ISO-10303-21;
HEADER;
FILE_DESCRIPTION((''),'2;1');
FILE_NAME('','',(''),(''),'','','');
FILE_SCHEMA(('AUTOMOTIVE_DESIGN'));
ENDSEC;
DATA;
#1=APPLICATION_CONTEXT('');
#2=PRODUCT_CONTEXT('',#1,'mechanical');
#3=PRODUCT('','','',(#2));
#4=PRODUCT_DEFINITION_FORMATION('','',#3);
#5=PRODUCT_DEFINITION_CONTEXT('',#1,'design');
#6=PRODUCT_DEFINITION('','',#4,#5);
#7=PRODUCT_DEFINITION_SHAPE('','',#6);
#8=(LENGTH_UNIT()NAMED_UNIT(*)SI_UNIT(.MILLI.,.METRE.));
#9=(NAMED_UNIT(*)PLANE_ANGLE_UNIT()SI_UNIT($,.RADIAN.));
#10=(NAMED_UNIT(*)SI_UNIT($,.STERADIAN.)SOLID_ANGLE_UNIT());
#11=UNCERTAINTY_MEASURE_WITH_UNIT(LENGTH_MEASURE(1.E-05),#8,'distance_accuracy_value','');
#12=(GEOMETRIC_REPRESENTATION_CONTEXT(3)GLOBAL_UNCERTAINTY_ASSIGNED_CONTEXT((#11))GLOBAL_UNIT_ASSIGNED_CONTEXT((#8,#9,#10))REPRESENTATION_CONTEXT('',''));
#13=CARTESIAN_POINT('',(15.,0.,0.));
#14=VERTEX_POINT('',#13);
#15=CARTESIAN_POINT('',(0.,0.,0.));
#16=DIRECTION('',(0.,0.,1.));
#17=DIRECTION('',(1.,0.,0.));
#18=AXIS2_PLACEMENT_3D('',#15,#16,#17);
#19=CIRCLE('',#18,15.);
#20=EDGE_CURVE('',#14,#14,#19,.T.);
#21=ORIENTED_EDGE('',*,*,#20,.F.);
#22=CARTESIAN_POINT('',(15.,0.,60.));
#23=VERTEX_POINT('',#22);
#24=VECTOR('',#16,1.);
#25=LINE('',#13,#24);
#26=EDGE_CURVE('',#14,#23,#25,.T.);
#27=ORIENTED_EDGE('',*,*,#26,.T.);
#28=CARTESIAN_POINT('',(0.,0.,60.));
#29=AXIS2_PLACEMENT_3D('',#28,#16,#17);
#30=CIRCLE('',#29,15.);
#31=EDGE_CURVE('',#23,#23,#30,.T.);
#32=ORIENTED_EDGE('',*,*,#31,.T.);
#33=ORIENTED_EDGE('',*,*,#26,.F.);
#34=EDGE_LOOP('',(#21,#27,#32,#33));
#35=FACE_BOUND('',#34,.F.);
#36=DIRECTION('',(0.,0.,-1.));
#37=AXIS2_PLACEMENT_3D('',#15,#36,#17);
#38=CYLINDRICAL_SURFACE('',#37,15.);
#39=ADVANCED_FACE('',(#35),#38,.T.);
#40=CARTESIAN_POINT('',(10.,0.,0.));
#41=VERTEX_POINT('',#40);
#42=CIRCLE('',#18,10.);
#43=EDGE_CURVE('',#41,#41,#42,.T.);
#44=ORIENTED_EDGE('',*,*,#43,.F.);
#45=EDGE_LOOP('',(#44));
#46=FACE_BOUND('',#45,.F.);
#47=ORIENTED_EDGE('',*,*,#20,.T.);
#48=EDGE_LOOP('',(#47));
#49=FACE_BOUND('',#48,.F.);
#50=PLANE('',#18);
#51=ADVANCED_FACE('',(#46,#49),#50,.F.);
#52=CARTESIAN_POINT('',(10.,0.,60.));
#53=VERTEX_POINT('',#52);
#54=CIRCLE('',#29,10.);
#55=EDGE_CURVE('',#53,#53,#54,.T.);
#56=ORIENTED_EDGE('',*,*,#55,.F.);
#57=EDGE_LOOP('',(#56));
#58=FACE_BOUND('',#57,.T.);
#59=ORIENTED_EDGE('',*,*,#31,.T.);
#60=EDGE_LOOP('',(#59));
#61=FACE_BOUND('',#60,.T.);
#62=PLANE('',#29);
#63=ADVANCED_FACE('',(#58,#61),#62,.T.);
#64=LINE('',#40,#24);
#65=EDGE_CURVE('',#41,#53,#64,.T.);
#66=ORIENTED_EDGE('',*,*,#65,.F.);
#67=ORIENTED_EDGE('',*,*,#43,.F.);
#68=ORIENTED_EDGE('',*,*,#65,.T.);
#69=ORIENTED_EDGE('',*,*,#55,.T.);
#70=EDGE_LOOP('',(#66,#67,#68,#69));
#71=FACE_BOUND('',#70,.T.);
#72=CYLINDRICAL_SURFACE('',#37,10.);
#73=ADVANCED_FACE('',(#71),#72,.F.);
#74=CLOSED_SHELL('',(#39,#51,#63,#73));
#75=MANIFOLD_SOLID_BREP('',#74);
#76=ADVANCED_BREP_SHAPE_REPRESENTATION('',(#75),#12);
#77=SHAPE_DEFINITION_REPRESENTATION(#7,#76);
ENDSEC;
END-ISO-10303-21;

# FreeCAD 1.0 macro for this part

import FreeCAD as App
import Part
import Sketcher

doc = App.newDocument("Part")
body = doc.addObject("PartDesign::Body", "Body")

# Sketch on XY plane
sketch1 = body.newObject("Sketcher::SketchObject", "Sketch")
sketch1.AttachmentSupport = (doc.getObject("XY_Plane"), [""])
sketch1.MapMode = "FlatFace"
sketch1.addGeometry(Part.Circle(App.Vector(0, 0, 0), App.Vector(0, 0, 1), 15), False)
sketch1.addGeometry(Part.Circle(App.Vector(0, 0, 0), App.Vector(0, 0, 1), 10), False)
sketch1.addConstraint(Sketcher.Constraint("Coincident", 0, 3, -1, 1))
sketch1.addConstraint(Sketcher.Constraint("Coincident", 1, 3, -1, 1))
sketch1.addConstraint(Sketcher.Constraint("Diameter", 0, 30.0))
sketch1.addConstraint(Sketcher.Constraint("Diameter", 1, 20.0))
pad1 = body.newObject("PartDesign::Pad", "Pad")
pad1.Profile = sketch1
pad1.Length = 60

doc.recompute()
